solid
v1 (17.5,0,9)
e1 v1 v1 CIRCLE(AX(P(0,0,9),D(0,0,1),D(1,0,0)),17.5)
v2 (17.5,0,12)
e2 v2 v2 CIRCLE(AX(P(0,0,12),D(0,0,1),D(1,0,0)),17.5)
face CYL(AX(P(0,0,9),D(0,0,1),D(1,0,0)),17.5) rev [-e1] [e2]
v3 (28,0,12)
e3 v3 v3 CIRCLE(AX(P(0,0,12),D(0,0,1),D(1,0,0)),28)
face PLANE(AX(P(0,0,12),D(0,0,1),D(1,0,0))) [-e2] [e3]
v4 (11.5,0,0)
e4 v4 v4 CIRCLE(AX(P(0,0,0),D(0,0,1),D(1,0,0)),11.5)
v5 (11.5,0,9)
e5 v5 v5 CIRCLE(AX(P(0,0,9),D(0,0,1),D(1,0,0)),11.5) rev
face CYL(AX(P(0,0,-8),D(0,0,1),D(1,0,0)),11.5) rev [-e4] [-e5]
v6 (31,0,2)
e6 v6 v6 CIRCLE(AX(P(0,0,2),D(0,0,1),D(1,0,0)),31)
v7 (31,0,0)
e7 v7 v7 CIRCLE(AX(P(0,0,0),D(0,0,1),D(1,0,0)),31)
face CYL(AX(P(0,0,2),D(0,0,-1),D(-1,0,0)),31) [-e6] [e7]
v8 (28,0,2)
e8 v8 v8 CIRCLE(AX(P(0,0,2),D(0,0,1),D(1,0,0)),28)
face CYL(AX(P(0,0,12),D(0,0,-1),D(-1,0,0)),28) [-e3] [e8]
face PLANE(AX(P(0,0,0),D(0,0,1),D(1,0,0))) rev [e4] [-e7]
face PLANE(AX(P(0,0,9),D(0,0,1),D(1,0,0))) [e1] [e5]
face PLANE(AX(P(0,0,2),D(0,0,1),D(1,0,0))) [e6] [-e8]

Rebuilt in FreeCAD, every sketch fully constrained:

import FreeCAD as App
import Part
import Sketcher
from FreeCAD import Vector

doc = App.newDocument("Part")
body = doc.addObject("PartDesign::Body", "Body")

# Sketch on XY plane
sketch1 = body.newObject("Sketcher::SketchObject", "Sketch")
sketch1.AttachmentSupport = (doc.getObject("XY_Plane"), [""])
sketch1.MapMode = "FlatFace"
sketch1.addGeometry(Part.Circle(Vector(0, 0, 0), Vector(0, 0, 1), 31), False)
sketch1.addConstraint(Sketcher.Constraint("Coincident", 0, 3, -1, 1))
sketch1.addConstraint(Sketcher.Constraint("Diameter", 0, 62.0))
pad1 = body.newObject("PartDesign::Pad", "Pad")
pad1.Profile = sketch1
pad1.Length = 2

# Sketch on XY plane
sketch2 = body.newObject("Sketcher::SketchObject", "Sketch001")
sketch2.AttachmentSupport = (doc.getObject("XY_Plane"), [""])
sketch2.MapMode = "FlatFace"
sketch2.AttachmentOffset = App.Placement(Vector(0, 0, 2), App.Rotation())
sketch2.addGeometry(Part.Circle(Vector(0, 0, 0), Vector(0, 0, 1), 28), False)
sketch2.addConstraint(Sketcher.Constraint("Coincident", 0, 3, -1, 1))
sketch2.addConstraint(Sketcher.Constraint("Diameter", 0, 56.0))
pad2 = body.newObject("PartDesign::Pad", "Pad001")
pad2.Profile = sketch2
pad2.Length = 10

# Sketch on XY plane
sketch3 = body.newObject("Sketcher::SketchObject", "Sketch002")
sketch3.AttachmentSupport = (doc.getObject("XY_Plane"), [""])
sketch3.MapMode = "FlatFace"
sketch3.AttachmentOffset = App.Placement(Vector(0, 0, 12), App.Rotation())
sketch3.addGeometry(Part.Circle(Vector(0, 0, 0), Vector(0, 0, 1), 12), False)
sketch3.addConstraint(Sketcher.Constraint("Coincident", 0, 3, -1, 1))
sketch3.addConstraint(Sketcher.Constraint("Diameter", 0, 23.0))
pocket1 = body.newObject("PartDesign::Pocket", "Pocket")
pocket1.Profile = sketch3
pocket1.Length = 20

# Sketch on XY plane
sketch4 = body.newObject("Sketcher::SketchObject", "Sketch003")
sketch4.AttachmentSupport = (doc.getObject("XY_Plane"), [""])
sketch4.MapMode = "FlatFace"
sketch4.AttachmentOffset = App.Placement(Vector(0, 0, 12), App.Rotation())
sketch4.addGeometry(Part.Circle(Vector(0, 0, 0), Vector(0, 0, 1), 18), False)
sketch4.addConstraint(Sketcher.Constraint("Coincident", 0, 3, -1, 1))
sketch4.addConstraint(Sketcher.Constraint("Diameter", 0, 35.0))
pocket2 = body.newObject("PartDesign::Pocket", "Pocket001")
pocket2.Profile = sketch4
pocket2.Length = 3

doc.recompute()
